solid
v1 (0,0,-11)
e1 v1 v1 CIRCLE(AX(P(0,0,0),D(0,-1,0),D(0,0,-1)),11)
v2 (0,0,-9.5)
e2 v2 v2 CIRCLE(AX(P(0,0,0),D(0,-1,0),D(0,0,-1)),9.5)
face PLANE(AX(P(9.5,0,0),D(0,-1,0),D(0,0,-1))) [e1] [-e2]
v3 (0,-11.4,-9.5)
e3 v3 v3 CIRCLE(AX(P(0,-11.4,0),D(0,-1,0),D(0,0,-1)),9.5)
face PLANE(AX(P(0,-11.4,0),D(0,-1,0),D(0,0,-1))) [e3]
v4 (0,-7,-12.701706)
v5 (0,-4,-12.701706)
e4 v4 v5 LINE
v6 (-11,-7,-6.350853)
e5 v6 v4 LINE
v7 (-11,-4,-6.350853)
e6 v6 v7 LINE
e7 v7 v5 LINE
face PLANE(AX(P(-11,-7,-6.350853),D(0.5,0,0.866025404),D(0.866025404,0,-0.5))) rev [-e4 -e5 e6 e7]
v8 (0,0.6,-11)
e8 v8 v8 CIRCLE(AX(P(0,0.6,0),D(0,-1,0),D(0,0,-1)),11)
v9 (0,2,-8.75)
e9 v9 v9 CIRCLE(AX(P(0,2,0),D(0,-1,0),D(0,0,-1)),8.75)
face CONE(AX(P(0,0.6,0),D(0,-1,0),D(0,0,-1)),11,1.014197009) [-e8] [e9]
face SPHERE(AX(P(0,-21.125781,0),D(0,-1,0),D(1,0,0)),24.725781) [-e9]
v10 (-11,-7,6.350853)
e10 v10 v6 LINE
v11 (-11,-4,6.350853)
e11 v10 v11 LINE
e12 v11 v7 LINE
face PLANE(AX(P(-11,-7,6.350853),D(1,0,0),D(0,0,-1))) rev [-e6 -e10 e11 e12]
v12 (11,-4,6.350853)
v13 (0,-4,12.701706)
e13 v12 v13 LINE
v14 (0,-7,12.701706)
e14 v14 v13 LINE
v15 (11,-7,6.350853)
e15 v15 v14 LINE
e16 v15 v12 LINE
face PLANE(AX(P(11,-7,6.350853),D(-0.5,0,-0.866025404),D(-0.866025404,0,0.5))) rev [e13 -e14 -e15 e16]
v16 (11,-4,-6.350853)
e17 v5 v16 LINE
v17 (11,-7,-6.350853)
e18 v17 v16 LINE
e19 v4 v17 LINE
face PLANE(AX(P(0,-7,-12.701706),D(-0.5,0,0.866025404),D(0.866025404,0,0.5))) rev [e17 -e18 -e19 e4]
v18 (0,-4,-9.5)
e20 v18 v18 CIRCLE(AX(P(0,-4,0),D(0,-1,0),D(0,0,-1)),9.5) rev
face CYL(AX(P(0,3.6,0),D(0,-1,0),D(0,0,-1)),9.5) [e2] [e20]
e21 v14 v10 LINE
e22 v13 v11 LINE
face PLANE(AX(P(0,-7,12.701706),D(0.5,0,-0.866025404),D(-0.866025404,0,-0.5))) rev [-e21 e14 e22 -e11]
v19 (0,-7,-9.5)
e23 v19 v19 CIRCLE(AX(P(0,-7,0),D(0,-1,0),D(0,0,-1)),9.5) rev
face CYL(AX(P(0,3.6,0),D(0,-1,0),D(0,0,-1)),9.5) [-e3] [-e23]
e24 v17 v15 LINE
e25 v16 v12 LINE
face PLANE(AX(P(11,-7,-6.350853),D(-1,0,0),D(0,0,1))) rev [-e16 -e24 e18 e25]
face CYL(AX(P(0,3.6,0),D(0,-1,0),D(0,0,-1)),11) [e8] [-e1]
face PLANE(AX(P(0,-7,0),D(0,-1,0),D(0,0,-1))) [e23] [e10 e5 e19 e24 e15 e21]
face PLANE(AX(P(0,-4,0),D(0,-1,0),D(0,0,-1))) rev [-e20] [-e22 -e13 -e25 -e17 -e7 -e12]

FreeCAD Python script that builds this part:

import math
import FreeCAD as App
import Part
import Sketcher
Q = App.Units.Quantity

doc = App.newDocument("Part")
body = doc.addObject("PartDesign::Body", "Body")

# Sketch on XY plane
sketch1 = body.newObject("Sketcher::SketchObject", "Sketch")
sketch1.AttachmentSupport = (doc.getObject("XY_Plane"), [""])
sketch1.MapMode = "FlatFace"
sketch1.addGeometry([
    Part.LineSegment(App.Vector(9.5, 0, 0), App.Vector(11, 0, 0)),  # 0
    Part.LineSegment(App.Vector(11, 0, 0), App.Vector(11, 0.6, 0)),  # 1
    Part.LineSegment(App.Vector(11, 0.6, 0), App.Vector(8.8, 2, 0)),  # 2
    Part.ArcOfCircle(Part.Circle(App.Vector(0, -21.1, 0), App.Vector(0, 0, 1), 24.7), math.radians(69), math.radians(90)),  # 3
    Part.LineSegment(App.Vector(0, 3.6, 0), App.Vector(0, -11.4, 0)),  # 4
    Part.LineSegment(App.Vector(0, -11.4, 0), App.Vector(9.5, -11.4, 0)),  # 5
    Part.LineSegment(App.Vector(9.5, -11.4, 0), App.Vector(9.5, 0, 0)),  # 6
], False)
sketch1.addConstraint([
    Sketcher.Constraint("Coincident", 0, 2, 1, 1),
    Sketcher.Constraint("Coincident", 1, 2, 2, 1),
    Sketcher.Constraint("Coincident", 2, 2, 3, 1),
    Sketcher.Constraint("Coincident", 3, 2, 4, 1),
    Sketcher.Constraint("Coincident", 4, 2, 5, 1),
    Sketcher.Constraint("Coincident", 5, 2, 6, 1),
    Sketcher.Constraint("Coincident", 6, 2, 0, 1),
    Sketcher.Constraint("Horizontal", 0),
    Sketcher.Constraint("Vertical", 1),
    Sketcher.Constraint("Vertical", 4),
    Sketcher.Constraint("Horizontal", 5),
    Sketcher.Constraint("Vertical", 6),
    Sketcher.Constraint("PointOnObject", 3, 3, -2),
    Sketcher.Constraint("PointOnObject", 0, 2, -1),
    Sketcher.Constraint("PointOnObject", 3, 2, -2),
    Sketcher.Constraint("DistanceY", 4, 2, 4, 1, 15.0),
    Sketcher.Constraint("DistanceX", 0, 1, 0, 2, 1.5),
    Sketcher.Constraint("DistanceX", 5, 1, 5, 2, 9.5),
    Sketcher.Constraint("DistanceY", 1, 1, 1, 2, 0.6),
    Sketcher.Constraint("DistanceY", 6, 1, 6, 2, 11.4),
    Sketcher.Constraint("DistanceY", -1, 1, 2, 2, 2.0),
    Sketcher.Constraint("Distance", 2, 2.65),
])
revolution = body.newObject("PartDesign::Revolution", "Revolution")
revolution.Profile = sketch1
revolution.ReferenceAxis = (sketch1, ["V_Axis"])
revolution.Angle = 360

# Sketch on XZ plane
sketch2 = body.newObject("Sketcher::SketchObject", "Sketch001")
sketch2.AttachmentSupport = (doc.getObject("XZ_Plane"), [""])
sketch2.MapMode = "FlatFace"
sketch2.AttachmentOffset = App.Placement(App.Vector(0, 0, 4), App.Rotation())
sketch2.addGeometry([
    Part.LineSegment(App.Vector(0, 13, 0), App.Vector(-11, 6, 0)),  # 0
    Part.LineSegment(App.Vector(-11, 6, 0), App.Vector(-11, -6, 0)),  # 1
    Part.LineSegment(App.Vector(-11, -6, 0), App.Vector(0, -13, 0)),  # 2
    Part.LineSegment(App.Vector(0, -13, 0), App.Vector(11, -6, 0)),  # 3
    Part.LineSegment(App.Vector(11, -6, 0), App.Vector(11, 6, 0)),  # 4
    Part.LineSegment(App.Vector(11, 6, 0), App.Vector(0, 13, 0)),  # 5
], False)
sketch2.addConstraint([
    Sketcher.Constraint("Coincident", 0, 2, 1, 1),
    Sketcher.Constraint("Coincident", 1, 2, 2, 1),
    Sketcher.Constraint("Coincident", 2, 2, 3, 1),
    Sketcher.Constraint("Coincident", 3, 2, 4, 1),
    Sketcher.Constraint("Coincident", 4, 2, 5, 1),
    Sketcher.Constraint("Coincident", 5, 2, 0, 1),
    Sketcher.Constraint("Vertical", 1),
    Sketcher.Constraint("Vertical", 4),
    Sketcher.Constraint("Symmetric", 0, 2, 3, 2, -1, 1),
    Sketcher.Constraint("Symmetric", 2, 2, 5, 2, -1, 1),
    Sketcher.Constraint("PointOnObject", 2, 2, -2),
    Sketcher.Constraint("Parallel", 2, 5),
    Sketcher.Constraint("Horizontal", 1, 2, 3, 2),
    Sketcher.Constraint("Angle", 0, Q("-150 deg")),
    Sketcher.Constraint("DistanceX", 0, 2, -1, 1, 11.0),
    Sketcher.Constraint("DistanceY", 1, 2, 1, 1, 12.701706),
])
pad1 = body.newObject("PartDesign::Pad", "Pad")
pad1.Profile = sketch2
pad1.Length = 3

doc.recompute()
